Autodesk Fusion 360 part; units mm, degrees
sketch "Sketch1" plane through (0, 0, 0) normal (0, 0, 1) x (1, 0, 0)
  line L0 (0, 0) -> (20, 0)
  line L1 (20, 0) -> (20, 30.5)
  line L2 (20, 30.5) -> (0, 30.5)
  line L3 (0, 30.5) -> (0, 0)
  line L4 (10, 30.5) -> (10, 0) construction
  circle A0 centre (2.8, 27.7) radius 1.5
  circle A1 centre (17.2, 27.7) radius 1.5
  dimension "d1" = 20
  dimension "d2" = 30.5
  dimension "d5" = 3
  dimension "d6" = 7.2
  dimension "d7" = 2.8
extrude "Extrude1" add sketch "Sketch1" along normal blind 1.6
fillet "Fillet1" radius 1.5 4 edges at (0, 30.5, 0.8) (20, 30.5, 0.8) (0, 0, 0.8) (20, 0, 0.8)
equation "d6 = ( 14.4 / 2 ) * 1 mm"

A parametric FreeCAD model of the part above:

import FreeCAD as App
import Part
import Sketcher


def edges_at(feature, points):
    """Names of the edges that pass closest to the given points."""
    edges = feature.Shape.Edges
    near = lambda p: min(range(len(edges)), key=lambda i: edges[i].distToShape(Part.Vertex(*p))[0])
    return sorted({f"Edge{near(p) + 1}" for p in points})


def add_polygon(sketch, points):
    """Adds a closed chain of lines whose ends are joined by coincident constraints."""
    first, n = sketch.GeometryCount, len(points)
    for a, b in zip(points, points[1:] + points[:1]):
        sketch.addGeometry(Part.LineSegment(App.Vector(*a, 0), App.Vector(*b, 0)), False)
    for i in range(n):
        sketch.addConstraint(Sketcher.Constraint("Coincident", first + i, 2, first + (i + 1) % n, 1))

doc = App.newDocument("Part")
body = doc.addObject("PartDesign::Body", "Body")

# Sketch on XY plane
sketch1 = body.newObject("Sketcher::SketchObject", "Sketch")
sketch1.AttachmentSupport = (doc.getObject("XY_Plane"), [""])
sketch1.MapMode = "FlatFace"
add_polygon(sketch1, [(0, 30.5), (0, 0), (20, 0), (20, 30.5)])  # lines 0-3
sketch1.addGeometry(Part.Circle(App.Vector(2.8, 27.7, 0), App.Vector(0, 0, 1), 1.5), False)  # 4
sketch1.addGeometry(Part.Circle(App.Vector(17.2, 27.7, 0), App.Vector(0, 0, 1), 1.5), False)  # 5
sketch1.addConstraint(Sketcher.Constraint("Vertical", 0))
sketch1.addConstraint(Sketcher.Constraint("Horizontal", 1))
sketch1.addConstraint(Sketcher.Constraint("Vertical", 2))
sketch1.addConstraint(Sketcher.Constraint("Horizontal", 3))
sketch1.addConstraint(Sketcher.Constraint("Coincident", 0, 2, -1, 1))
sketch1.addConstraint(Sketcher.Constraint("Equal", 4, 5))
sketch1.addConstraint(Sketcher.Constraint("Horizontal", 4, 3, 5, 3))
sketch1.addConstraint(Sketcher.Constraint("Diameter", 4, 3.0))
sketch1.addConstraint(Sketcher.Constraint("DistanceX", 1, 1, 1, 2, 20.0))
sketch1.addConstraint(Sketcher.Constraint("DistanceY", 0, 2, 0, 1, 30.5))
sketch1.addConstraint(Sketcher.Constraint("DistanceX", -1, 1, 4, 3, 2.8))
sketch1.addConstraint(Sketcher.Constraint("DistanceX", 5, 3, 1, 2, 2.8))
sketch1.addConstraint(Sketcher.Constraint("DistanceY", 5, 3, 2, 2, 2.8))
pad1 = body.newObject("PartDesign::Pad", "Pad")
pad1.Profile = sketch1
pad1.Length = 1.6
doc.recompute()

fillet = body.newObject("PartDesign::Fillet", "Fillet")
fillet.Base = (pad1, edges_at(pad1, [
    (0, 30.5, 0.8),
    (20, 30.5, 0.8),
    (0, 0, 0.8),
    (20, 0, 0.8),
]))
fillet.Radius = 1.5

doc.recompute()
